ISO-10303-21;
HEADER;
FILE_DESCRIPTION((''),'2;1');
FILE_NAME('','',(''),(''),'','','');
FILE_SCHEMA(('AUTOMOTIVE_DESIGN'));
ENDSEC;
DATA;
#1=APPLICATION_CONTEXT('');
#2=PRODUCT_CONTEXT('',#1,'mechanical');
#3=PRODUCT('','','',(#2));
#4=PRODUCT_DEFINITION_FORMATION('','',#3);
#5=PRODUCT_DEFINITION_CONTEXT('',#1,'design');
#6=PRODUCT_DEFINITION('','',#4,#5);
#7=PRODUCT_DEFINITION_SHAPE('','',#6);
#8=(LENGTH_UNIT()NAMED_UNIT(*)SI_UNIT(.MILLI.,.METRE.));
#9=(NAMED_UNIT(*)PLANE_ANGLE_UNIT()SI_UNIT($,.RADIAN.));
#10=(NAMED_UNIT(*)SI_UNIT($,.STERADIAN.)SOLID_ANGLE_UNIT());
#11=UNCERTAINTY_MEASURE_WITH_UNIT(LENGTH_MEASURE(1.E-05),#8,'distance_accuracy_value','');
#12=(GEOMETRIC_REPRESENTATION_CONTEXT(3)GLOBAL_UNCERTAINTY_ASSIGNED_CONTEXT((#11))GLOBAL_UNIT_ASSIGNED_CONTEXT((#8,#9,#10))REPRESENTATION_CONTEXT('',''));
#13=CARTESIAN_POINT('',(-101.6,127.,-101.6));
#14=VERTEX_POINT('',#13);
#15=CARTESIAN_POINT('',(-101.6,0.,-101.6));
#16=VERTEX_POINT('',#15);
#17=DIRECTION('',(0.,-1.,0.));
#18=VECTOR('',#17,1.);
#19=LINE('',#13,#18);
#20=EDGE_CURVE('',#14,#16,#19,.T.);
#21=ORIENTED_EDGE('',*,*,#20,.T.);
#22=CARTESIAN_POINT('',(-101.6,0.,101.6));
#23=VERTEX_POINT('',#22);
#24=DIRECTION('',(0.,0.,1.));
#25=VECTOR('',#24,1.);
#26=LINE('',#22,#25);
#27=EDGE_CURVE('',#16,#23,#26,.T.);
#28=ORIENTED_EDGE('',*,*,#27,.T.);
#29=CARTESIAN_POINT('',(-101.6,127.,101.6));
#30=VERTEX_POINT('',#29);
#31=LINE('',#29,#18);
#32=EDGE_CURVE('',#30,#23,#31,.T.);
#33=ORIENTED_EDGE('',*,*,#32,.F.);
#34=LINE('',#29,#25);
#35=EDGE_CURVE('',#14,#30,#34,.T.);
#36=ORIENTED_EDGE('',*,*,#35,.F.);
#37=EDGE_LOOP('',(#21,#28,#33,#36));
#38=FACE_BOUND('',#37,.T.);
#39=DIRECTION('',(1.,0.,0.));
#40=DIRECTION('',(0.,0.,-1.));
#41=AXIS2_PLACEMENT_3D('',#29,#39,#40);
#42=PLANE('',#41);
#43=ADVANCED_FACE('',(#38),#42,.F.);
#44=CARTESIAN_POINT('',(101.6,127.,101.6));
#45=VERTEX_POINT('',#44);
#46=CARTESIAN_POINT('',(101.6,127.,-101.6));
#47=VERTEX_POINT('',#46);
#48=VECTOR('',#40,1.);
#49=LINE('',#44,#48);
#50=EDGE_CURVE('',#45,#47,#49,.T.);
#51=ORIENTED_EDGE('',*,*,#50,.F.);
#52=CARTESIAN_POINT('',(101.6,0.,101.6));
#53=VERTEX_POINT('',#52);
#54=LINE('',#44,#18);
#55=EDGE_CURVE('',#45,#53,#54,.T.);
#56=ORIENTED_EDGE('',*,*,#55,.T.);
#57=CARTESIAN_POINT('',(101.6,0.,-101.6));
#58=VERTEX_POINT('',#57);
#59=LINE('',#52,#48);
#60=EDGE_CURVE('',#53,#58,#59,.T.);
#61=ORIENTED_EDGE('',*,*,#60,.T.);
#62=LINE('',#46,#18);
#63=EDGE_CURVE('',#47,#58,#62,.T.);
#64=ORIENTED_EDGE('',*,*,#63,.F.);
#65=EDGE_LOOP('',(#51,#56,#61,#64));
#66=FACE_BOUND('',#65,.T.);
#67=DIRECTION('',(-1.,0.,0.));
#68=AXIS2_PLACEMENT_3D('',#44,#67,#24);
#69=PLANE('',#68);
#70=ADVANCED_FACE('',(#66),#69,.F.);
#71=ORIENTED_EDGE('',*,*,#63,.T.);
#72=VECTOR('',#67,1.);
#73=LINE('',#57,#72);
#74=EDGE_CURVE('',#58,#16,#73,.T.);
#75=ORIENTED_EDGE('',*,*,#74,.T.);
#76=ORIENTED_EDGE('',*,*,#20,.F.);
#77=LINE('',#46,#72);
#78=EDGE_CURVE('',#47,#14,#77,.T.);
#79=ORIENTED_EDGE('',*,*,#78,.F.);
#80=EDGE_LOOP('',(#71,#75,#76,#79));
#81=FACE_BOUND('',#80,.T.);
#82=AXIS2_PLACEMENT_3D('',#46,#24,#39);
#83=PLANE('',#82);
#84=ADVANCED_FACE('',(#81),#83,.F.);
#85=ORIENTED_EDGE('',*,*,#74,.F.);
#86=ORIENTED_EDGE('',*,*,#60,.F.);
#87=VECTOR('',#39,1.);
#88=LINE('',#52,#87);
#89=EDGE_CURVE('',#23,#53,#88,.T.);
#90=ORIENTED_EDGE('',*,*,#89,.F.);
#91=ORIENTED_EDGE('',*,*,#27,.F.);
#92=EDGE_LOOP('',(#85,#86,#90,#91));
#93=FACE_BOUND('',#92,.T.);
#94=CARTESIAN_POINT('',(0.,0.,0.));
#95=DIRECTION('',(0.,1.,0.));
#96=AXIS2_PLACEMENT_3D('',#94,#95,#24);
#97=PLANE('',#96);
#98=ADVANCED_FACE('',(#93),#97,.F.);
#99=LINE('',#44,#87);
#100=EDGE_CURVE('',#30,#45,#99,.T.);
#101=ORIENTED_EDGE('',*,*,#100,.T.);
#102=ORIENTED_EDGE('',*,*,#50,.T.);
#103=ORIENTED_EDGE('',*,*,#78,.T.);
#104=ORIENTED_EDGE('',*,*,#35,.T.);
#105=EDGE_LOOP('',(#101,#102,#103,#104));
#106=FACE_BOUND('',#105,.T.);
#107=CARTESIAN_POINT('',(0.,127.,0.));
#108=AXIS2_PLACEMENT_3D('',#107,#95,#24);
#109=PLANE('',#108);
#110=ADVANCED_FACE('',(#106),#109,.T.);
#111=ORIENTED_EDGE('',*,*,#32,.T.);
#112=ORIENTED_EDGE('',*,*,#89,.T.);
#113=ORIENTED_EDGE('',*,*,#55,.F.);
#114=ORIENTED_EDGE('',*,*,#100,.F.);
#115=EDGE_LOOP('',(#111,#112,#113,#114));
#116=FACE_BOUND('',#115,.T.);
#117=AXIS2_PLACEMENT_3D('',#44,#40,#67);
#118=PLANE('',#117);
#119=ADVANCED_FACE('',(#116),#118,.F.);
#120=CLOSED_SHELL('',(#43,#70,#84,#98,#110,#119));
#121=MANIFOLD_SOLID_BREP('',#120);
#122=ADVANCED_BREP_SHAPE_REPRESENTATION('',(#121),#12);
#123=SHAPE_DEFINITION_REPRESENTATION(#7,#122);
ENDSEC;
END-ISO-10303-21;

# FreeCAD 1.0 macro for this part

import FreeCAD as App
import Part
import Sketcher
from FreeCAD import Vector
Q = App.Units.Quantity

doc = App.newDocument("Part")
body = doc.addObject("PartDesign::Body", "Body")

# Sketch on XZ plane
sketch1 = doc.addObject("Sketcher::SketchObject", "Sketch")
body.addObject(sketch1)
sketch1.AttachmentSupport = (doc.XZ_Plane, [""])
sketch1.MapMode = "FlatFace"
sketch1.addGeometry(Part.LineSegment(Vector(-102, -102, 0), Vector(-102, 102, 0)), False)
sketch1.addGeometry(Part.LineSegment(Vector(-102, 102, 0), Vector(102, 102, 0)), False)
sketch1.addGeometry(Part.LineSegment(Vector(102, 102, 0), Vector(102, -102, 0)), False)
sketch1.addGeometry(Part.LineSegment(Vector(102, -102, 0), Vector(-102, -102, 0)), False)
sketch1.addConstraint(Sketcher.Constraint("Coincident", 0, 2, 1, 1))
sketch1.addConstraint(Sketcher.Constraint("Coincident", 1, 2, 2, 1))
sketch1.addConstraint(Sketcher.Constraint("Coincident", 2, 2, 3, 1))
sketch1.addConstraint(Sketcher.Constraint("Coincident", 3, 2, 0, 1))
sketch1.addConstraint(Sketcher.Constraint("Vertical", 0))
sketch1.addConstraint(Sketcher.Constraint("Horizontal", 1))
sketch1.addConstraint(Sketcher.Constraint("Vertical", 2))
sketch1.addConstraint(Sketcher.Constraint("Horizontal", 3))
sketch1.addConstraint(Sketcher.Constraint("Symmetric", 0, 2, 2, 2, -1, 1))
sketch1.addConstraint(Sketcher.Constraint("Equal", 3, 0))
sketch1.addConstraint(Sketcher.Constraint("DistanceX", 1, 1, 1, 2, Q("8 in")))
pad1 = doc.addObject("PartDesign::Pad", "Pad")
body.addObject(pad1)
pad1.Profile = sketch1
pad1.Length = Q("5 in")
pad1.Reversed = True

doc.recompute()
